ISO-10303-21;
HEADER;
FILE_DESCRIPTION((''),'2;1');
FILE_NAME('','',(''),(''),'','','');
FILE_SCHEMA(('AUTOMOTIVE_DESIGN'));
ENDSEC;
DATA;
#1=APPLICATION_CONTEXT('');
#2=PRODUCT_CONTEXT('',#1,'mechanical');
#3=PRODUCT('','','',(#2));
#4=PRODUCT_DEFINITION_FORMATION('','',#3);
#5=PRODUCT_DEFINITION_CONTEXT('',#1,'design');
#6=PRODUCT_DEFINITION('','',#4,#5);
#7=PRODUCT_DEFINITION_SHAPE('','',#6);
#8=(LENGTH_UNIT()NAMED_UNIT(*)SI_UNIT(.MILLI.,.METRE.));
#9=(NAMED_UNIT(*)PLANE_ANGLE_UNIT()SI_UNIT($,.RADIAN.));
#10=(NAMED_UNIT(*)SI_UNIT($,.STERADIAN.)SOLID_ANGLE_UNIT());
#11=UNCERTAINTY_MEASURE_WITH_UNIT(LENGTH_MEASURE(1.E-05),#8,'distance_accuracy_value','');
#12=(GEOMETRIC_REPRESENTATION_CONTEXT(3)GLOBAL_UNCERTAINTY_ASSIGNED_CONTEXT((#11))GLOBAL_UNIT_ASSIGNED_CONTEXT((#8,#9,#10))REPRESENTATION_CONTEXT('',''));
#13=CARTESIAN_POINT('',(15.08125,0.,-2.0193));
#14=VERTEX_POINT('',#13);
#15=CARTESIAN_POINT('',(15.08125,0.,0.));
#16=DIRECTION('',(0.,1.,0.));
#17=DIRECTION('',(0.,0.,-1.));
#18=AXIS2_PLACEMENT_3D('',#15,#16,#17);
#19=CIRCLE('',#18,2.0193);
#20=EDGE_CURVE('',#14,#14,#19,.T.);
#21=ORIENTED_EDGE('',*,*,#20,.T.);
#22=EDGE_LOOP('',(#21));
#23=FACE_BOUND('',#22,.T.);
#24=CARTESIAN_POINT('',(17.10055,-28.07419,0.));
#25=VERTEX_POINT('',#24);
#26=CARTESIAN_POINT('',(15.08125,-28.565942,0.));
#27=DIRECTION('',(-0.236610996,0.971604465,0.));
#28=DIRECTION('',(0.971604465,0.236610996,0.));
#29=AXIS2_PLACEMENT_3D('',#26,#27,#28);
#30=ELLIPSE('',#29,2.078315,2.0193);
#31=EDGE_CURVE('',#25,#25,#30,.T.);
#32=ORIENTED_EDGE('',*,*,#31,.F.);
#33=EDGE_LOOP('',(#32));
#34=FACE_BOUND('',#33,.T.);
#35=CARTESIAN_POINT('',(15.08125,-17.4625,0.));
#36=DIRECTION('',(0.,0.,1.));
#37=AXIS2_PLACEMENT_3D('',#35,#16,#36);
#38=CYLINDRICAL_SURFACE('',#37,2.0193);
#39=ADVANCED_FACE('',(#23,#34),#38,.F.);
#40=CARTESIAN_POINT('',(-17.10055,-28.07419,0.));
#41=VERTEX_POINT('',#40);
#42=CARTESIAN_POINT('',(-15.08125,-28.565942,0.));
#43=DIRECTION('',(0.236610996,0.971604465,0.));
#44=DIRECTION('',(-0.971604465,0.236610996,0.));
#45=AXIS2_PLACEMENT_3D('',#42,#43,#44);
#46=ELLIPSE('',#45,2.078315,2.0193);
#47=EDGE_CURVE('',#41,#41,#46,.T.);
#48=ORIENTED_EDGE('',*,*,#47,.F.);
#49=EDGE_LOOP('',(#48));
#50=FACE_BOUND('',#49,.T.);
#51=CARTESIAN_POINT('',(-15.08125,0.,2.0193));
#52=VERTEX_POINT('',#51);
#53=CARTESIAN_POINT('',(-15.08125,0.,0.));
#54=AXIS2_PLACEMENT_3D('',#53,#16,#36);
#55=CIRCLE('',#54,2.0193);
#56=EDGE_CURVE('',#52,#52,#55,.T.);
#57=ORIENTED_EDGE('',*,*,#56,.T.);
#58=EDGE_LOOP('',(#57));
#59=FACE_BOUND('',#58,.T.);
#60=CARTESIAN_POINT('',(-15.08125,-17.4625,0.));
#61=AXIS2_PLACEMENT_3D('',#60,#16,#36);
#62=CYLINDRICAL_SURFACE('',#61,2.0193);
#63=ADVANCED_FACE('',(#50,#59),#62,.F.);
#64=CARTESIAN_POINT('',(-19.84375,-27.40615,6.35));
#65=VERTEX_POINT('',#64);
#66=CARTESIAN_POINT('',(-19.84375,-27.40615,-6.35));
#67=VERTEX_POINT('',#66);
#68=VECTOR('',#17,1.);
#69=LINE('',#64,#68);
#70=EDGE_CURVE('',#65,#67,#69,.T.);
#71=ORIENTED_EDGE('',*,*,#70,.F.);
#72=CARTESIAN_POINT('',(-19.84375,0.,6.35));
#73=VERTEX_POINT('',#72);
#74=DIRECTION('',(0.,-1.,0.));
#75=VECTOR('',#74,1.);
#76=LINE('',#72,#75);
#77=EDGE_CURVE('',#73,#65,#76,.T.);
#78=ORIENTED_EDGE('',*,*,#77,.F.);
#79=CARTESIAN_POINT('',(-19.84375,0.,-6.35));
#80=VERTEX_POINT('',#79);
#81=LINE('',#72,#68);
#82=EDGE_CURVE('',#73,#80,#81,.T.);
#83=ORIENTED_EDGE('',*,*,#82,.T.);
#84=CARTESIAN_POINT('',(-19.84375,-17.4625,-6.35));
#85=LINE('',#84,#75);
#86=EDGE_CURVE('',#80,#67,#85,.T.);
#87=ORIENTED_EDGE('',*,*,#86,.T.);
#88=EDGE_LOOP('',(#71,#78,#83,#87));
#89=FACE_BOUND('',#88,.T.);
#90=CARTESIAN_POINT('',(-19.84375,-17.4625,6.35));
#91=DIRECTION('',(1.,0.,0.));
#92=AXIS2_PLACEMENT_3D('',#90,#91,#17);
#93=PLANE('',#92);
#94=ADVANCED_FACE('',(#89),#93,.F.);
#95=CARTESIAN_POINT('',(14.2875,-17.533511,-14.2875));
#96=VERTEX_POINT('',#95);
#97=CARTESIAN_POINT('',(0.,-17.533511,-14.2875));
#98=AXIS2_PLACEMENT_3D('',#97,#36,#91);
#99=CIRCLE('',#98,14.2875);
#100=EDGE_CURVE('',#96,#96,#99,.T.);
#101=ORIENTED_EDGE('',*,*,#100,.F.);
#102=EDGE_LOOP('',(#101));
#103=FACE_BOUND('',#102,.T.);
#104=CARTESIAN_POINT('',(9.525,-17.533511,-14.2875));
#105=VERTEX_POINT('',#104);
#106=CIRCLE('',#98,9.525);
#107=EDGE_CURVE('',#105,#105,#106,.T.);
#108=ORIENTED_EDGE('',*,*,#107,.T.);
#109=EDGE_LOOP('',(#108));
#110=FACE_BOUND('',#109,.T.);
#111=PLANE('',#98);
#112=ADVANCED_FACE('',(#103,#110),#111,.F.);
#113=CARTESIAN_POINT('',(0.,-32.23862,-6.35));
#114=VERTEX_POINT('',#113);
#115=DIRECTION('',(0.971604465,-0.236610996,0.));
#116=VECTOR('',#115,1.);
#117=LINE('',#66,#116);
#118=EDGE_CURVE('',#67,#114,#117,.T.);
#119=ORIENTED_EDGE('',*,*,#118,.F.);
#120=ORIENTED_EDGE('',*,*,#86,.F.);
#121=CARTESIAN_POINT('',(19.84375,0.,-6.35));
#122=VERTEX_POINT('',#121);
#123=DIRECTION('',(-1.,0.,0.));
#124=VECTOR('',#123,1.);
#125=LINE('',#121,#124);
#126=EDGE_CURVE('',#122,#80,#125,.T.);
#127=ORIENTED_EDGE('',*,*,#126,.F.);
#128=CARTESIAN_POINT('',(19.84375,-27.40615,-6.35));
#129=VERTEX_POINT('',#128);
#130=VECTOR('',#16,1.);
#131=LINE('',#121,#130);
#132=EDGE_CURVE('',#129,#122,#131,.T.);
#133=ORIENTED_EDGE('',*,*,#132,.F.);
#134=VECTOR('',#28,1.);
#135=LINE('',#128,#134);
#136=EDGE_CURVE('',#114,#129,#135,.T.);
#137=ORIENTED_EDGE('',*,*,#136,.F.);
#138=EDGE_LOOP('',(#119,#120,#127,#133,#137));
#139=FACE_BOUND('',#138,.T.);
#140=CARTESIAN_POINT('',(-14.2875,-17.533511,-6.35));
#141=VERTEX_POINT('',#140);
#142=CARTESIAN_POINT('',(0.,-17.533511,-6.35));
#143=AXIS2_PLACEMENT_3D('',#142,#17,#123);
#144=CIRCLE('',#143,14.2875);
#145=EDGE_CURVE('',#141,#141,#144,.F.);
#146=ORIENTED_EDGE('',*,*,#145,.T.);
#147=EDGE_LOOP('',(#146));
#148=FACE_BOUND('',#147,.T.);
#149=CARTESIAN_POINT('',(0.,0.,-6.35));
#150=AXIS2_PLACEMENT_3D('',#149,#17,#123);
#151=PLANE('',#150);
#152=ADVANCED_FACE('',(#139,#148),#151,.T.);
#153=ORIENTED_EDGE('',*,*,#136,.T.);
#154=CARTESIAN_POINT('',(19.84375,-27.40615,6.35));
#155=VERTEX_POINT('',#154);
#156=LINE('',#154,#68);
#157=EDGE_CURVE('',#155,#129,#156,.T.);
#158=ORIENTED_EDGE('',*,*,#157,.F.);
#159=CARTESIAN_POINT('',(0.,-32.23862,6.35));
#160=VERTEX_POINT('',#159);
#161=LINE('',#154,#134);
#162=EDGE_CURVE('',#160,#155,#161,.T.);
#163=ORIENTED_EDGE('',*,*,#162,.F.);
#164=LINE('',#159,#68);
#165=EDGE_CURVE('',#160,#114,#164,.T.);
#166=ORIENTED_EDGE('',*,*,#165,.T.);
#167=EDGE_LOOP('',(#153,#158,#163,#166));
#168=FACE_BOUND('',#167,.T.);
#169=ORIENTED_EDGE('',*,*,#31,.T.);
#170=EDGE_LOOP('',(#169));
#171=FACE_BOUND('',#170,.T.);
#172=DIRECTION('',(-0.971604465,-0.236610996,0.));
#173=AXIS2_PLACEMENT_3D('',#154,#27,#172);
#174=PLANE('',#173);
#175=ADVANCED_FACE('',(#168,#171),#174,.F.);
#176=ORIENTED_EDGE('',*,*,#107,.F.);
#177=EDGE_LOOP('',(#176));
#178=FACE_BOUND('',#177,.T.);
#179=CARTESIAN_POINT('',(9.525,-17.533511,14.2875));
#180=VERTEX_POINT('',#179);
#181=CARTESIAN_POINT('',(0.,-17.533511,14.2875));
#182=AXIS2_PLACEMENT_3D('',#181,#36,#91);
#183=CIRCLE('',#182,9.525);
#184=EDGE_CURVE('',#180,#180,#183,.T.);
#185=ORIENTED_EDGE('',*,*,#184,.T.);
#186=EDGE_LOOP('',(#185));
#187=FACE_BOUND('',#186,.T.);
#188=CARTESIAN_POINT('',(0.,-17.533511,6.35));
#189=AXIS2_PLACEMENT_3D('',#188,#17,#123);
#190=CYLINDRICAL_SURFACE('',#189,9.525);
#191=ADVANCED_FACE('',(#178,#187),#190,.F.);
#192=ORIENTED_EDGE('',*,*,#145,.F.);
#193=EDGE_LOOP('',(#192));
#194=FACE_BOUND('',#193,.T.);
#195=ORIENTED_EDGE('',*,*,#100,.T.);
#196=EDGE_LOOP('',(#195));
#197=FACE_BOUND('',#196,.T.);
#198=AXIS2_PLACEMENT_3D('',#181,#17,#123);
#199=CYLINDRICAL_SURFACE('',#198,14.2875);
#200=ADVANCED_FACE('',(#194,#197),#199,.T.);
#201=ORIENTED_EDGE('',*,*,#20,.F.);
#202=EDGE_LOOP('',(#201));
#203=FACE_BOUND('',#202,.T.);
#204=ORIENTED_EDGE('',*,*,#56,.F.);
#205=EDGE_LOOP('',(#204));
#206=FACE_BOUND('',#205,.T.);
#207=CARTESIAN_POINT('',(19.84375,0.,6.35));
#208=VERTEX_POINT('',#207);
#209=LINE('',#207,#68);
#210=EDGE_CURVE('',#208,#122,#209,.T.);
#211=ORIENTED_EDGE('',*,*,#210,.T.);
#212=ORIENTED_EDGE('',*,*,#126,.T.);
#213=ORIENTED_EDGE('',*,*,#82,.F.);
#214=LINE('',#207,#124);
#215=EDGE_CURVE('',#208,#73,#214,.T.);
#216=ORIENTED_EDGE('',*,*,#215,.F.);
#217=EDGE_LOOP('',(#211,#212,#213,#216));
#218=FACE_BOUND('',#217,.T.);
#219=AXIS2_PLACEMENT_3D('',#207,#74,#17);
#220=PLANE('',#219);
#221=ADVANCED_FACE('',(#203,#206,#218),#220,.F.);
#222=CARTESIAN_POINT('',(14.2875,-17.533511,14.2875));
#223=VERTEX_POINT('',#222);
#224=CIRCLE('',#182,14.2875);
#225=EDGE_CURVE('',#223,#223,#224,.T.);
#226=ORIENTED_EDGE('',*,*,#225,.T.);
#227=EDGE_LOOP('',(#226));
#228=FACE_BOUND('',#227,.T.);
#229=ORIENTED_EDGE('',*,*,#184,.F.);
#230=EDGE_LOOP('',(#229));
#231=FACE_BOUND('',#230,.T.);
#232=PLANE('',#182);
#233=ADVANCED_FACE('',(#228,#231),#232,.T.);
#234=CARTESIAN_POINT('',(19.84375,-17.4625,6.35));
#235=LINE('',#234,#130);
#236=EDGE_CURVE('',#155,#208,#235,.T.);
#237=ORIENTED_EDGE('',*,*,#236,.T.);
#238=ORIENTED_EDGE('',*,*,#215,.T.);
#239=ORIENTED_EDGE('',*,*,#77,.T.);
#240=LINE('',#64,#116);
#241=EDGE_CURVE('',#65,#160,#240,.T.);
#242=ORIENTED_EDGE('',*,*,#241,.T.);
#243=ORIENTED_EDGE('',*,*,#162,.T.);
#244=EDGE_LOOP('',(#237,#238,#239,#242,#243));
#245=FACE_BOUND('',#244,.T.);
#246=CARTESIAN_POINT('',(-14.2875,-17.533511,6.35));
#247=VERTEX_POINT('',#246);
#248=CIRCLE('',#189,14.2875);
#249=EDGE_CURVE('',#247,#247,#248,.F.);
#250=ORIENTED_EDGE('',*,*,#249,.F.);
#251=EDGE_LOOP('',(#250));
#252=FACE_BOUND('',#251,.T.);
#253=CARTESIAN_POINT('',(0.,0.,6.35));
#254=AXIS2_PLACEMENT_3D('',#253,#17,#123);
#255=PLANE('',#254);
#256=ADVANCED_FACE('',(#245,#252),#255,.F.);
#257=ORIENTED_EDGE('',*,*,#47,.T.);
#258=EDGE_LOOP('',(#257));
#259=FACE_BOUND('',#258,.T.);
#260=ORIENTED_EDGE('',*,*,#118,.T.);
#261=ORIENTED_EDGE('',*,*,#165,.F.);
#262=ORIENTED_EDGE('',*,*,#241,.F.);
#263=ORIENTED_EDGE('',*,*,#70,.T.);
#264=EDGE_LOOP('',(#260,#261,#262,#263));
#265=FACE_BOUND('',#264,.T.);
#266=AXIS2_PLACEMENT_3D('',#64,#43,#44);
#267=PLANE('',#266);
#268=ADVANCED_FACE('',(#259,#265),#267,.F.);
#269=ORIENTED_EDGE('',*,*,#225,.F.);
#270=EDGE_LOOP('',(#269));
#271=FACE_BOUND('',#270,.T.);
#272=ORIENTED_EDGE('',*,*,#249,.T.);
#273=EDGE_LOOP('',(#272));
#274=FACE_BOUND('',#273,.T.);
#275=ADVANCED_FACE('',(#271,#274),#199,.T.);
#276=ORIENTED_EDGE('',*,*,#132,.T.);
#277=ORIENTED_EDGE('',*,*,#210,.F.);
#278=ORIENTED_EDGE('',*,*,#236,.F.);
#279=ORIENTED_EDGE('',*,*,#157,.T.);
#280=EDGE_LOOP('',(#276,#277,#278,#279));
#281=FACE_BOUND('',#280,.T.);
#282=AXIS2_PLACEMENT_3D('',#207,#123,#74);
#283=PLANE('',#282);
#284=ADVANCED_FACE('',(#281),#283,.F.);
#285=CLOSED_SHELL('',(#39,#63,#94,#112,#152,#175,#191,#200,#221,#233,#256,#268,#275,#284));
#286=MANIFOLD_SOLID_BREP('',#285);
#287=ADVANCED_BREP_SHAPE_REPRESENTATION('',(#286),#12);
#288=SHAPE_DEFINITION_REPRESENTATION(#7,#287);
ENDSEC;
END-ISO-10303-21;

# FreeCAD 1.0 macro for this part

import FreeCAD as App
import Part
import Sketcher
Q = App.Units.Quantity


def add_polygon(sketch, points):
    """Adds a closed chain of lines whose ends are joined by coincident constraints."""
    first, n = sketch.GeometryCount, len(points)
    for a, b in zip(points, points[1:] + points[:1]):
        sketch.addGeometry(Part.LineSegment(App.Vector(*a, 0), App.Vector(*b, 0)), False)
    for i in range(n):
        sketch.addConstraint(Sketcher.Constraint("Coincident", first + i, 2, first + (i + 1) % n, 1))

doc = App.newDocument("Part")
params = doc.addObject("Spreadsheet::Sheet", "Params")
for row, (alias, value) in enumerate([
    ("sketch1_diameter", "0.75 in"),
    ("sketch1_width", "1.5625 in"),
    ("pad1_length", "0.5 in"),
    ("sketch2_diameter", "0.75 in"),
    ("sketch2_diameter2", "1.125 in"),
    ("pad2_length", "1.125 in"),
    ("sketch3_diameter", "0.159 in"),
    ("pocket1_length", "0.6875 in"),
    ("sketch4_diameter", "0.159 in"),
], start=1):
    params.set(f"A{row}", alias)
    params.set(f"B{row}", "=" + value)
    params.setAlias(f"B{row}", alias)

body = doc.addObject("PartDesign::Body", "Body")

sketch1 = body.newObject("Sketcher::SketchObject", "Sketch")
sketch1.AttachmentSupport = (doc.getObject("XY_Plane"), [""])
sketch1.MapMode = "FlatFace"
add_polygon(sketch1, [(20, 0), (-20, 0), (-20, -27), (0, -32), (20, -27)])
sketch1.addGeometry(Part.Circle(App.Vector(0, -18, 0), App.Vector(0, 0, 1), 10), False)
sketch1.addConstraint(Sketcher.Constraint("Horizontal", 0))
sketch1.addConstraint(Sketcher.Constraint("Vertical", 1))
sketch1.addConstraint(Sketcher.Constraint("Vertical", 4))
sketch1.addConstraint(Sketcher.Constraint("Symmetric", 0, 2, 4, 2, -1, 1))
sketch1.addConstraint(Sketcher.Constraint("PointOnObject", 5, 3, -2))
sketch1.addConstraint(Sketcher.Constraint("PointOnObject", 2, 2, -2))
sketch1.addConstraint(Sketcher.Constraint("Horizontal", 1, 2, 3, 2))
sketch1.addConstraint(Sketcher.Constraint("Diameter", 5, Q("0.75 in")))
sketch1.addConstraint(Sketcher.Constraint("DistanceX", 0, 2, 0, 1, Q("1.5625 in")))
sketch1.addConstraint(Sketcher.Constraint("DistanceY", 1, 2, 1, 1, 27.40615))
sketch1.addConstraint(Sketcher.Constraint("Distance", 2, 20.423692))
sketch1.addConstraint(Sketcher.Constraint("DistanceY", 5, 3, -1, 1, 17.533511))
sketch1.setExpression("Constraints[12]", "Params.sketch1_diameter")
sketch1.setExpression("Constraints[13]", "Params.sketch1_width")
pad1 = body.newObject("PartDesign::Pad", "Pad")
pad1.Profile = sketch1
pad1.setExpression("Length", "Params.pad1_length")
pad1.Midplane = True

sketch2 = body.newObject("Sketcher::SketchObject", "Sketch001")
sketch2.AttachmentSupport = (doc.getObject("XY_Plane"), [""])
sketch2.MapMode = "FlatFace"
sketch2.addGeometry(Part.Circle(App.Vector(0, -18, 0), App.Vector(0, 0, 1), 14), False)
sketch2.addGeometry(Part.Circle(App.Vector(0, -18, 0), App.Vector(0, 0, 1), 10), False)
sketch2.addConstraint(Sketcher.Constraint("Coincident", 1, 3, 0, 3))
sketch2.addConstraint(Sketcher.Constraint("PointOnObject", 0, 3, -2))
sketch2.addConstraint(Sketcher.Constraint("Diameter", 1, Q("0.75 in")))
sketch2.addConstraint(Sketcher.Constraint("Diameter", 0, Q("1.125 in")))
sketch2.addConstraint(Sketcher.Constraint("DistanceY", 0, 3, -1, 1, 17.533511))
sketch2.setExpression("Constraints[2]", "Params.sketch2_diameter")
sketch2.setExpression("Constraints[3]", "Params.sketch2_diameter2")
pad2 = body.newObject("PartDesign::Pad", "Pad001")
pad2.Profile = sketch2
pad2.setExpression("Length", "Params.pad2_length")
pad2.Midplane = True

sketch3 = body.newObject("Sketcher::SketchObject", "Sketch002")
sketch3.AttachmentSupport = (doc.getObject("XZ_Plane"), [""])
sketch3.MapMode = "FlatFace"
sketch3.addGeometry(Part.Circle(App.Vector(-15.1, 0, 0), App.Vector(0, 0, 1), 2), False)
sketch3.addGeometry(Part.Circle(App.Vector(15.1, 0, 0), App.Vector(0, 0, 1), 2), False)
sketch3.addConstraint(Sketcher.Constraint("Equal", 0, 1))
sketch3.addConstraint(Sketcher.Constraint("Symmetric", 0, 3, 1, 3, -1, 1))
sketch3.addConstraint(Sketcher.Constraint("PointOnObject", 0, 3, -1))
sketch3.addConstraint(Sketcher.Constraint("Diameter", 0, Q("0.159 in")))
sketch3.addConstraint(Sketcher.Constraint("DistanceX", 0, 3, -1, 1, Q("0.59375 in")))
sketch3.setExpression("Constraints[3]", "Params.sketch3_diameter")
pocket1 = body.newObject("PartDesign::Pocket", "Pocket")
pocket1.Profile = sketch3
pocket1.setExpression("Length", "Params.pocket1_length")
pocket1.Reversed = True

sketch4 = body.newObject("Sketcher::SketchObject", "Sketch003")
sketch4.AttachmentSupport = (doc.getObject("XZ_Plane"), [""])
sketch4.MapMode = "FlatFace"
sketch4.AttachmentOffset = App.Placement(App.Vector(0, 0, 0.6875 * 25.4), App.Rotation())
sketch4.addGeometry(Part.Circle(App.Vector(-15.1, 0, 0), App.Vector(0, 0, 1), 2), False)
sketch4.addGeometry(Part.Circle(App.Vector(15.1, 0, 0), App.Vector(0, 0, 1), 2), False)
sketch4.addConstraint(Sketcher.Constraint("Equal", 0, 1))
sketch4.addConstraint(Sketcher.Constraint("Symmetric", 0, 3, 1, 3, -1, 1))
sketch4.addConstraint(Sketcher.Constraint("PointOnObject", 0, 3, -1))
sketch4.addConstraint(Sketcher.Constraint("Diameter", 0, Q("0.159 in")))
sketch4.addConstraint(Sketcher.Constraint("DistanceX", 0, 3, -1, 1, Q("0.59375 in")))
sketch4.setExpression("Constraints[3]", "Params.sketch4_diameter")
pocket2 = body.newObject("PartDesign::Pocket", "Pocket001")
pocket2.Profile = sketch4
pocket2.Type = "ThroughAll"
pocket2.Midplane = True

doc.recompute()
